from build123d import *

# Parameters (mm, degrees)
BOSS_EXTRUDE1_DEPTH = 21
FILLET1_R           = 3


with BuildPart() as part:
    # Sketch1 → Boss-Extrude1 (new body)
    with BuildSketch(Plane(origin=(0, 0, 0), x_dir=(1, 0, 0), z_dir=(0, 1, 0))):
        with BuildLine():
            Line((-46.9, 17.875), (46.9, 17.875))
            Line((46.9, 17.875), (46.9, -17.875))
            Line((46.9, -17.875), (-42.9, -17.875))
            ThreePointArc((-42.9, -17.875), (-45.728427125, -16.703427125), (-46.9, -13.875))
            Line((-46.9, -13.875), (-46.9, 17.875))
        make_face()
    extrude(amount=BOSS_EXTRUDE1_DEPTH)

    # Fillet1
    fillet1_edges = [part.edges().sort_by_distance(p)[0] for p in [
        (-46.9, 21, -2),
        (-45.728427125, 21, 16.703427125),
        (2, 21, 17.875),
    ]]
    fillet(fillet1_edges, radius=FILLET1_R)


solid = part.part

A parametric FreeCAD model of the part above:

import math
import FreeCAD as App
import Part
import Sketcher
from FreeCAD import Vector


def edges_at(feature, points):
    """Names of the edges that pass closest to the given points."""
    edges = feature.Shape.Edges
    near = lambda p: min(range(len(edges)), key=lambda i: edges[i].distToShape(Part.Vertex(*p))[0])
    return sorted({f"Edge{near(p) + 1}" for p in points})

doc = App.newDocument("Part")
params = doc.addObject("Spreadsheet::Sheet", "Params")
for row, (alias, value) in enumerate([
    ("sketch1_radius", "4 mm"),
    ("sketch1_width", "93.8 mm"),
    ("sketch1_height", "31.75 mm"),
    ("pad1_length", "21 mm"),
    ("fillet_radius", "3 mm"),
], start=1):
    params.set(f"A{row}", alias)
    params.set(f"B{row}", "=" + value)
    params.setAlias(f"B{row}", alias)

body = doc.addObject("PartDesign::Body", "Body")

# Sketch on XZ plane
sketch1 = body.newObject("Sketcher::SketchObject", "Sketch")
sketch1.AttachmentSupport = (doc.getObject("XZ_Plane"), [""])
sketch1.MapMode = "FlatFace"
sketch1.addGeometry([
    Part.LineSegment(Vector(46.9, -17.9, 0), Vector(-46.9, -17.9, 0)),  # 0
    Part.LineSegment(Vector(-46.9, -17.9, 0), Vector(-46.9, 13.9, 0)),  # 1
    Part.ArcOfCircle(Part.Circle(Vector(-42.9, 13.9, 0), Vector(0, 0, 1), 4), math.radians(90), math.radians(180)),  # 2
    Part.LineSegment(Vector(-42.9, 17.9, 0), Vector(46.9, 17.9, 0)),  # 3
    Part.LineSegment(Vector(46.9, 17.9, 0), Vector(46.9, -17.9, 0)),  # 4
], False)
sketch1.addConstraint([
    Sketcher.Constraint("Coincident", 0, 2, 1, 1),
    Sketcher.Constraint("Tangent", 1, 2, 2, 2),
    Sketcher.Constraint("Tangent", 2, 1, 3, 1),
    Sketcher.Constraint("Coincident", 3, 2, 4, 1),
    Sketcher.Constraint("Coincident", 4, 2, 0, 1),
    Sketcher.Constraint("Horizontal", 0),
    Sketcher.Constraint("Vertical", 1),
    Sketcher.Constraint("Horizontal", 3),
    Sketcher.Constraint("Vertical", 4),
    Sketcher.Constraint("Symmetric", 0, 2, 3, 2, -1, 1),
    Sketcher.Constraint("Radius", 2, 4.0),
    Sketcher.Constraint("DistanceX", 0, 2, 0, 1, 93.8),
    Sketcher.Constraint("DistanceY", 1, 1, 1, 2, 31.75),
])
sketch1.setExpression("Constraints[10]", "Params.sketch1_radius")
sketch1.setExpression("Constraints[11]", "Params.sketch1_width")
sketch1.setExpression("Constraints[12]", "Params.sketch1_height")
pad1 = body.newObject("PartDesign::Pad", "Pad")
pad1.Profile = sketch1
pad1.setExpression("Length", "Params.pad1_length")
pad1.Reversed = True
doc.recompute()

fillet = body.newObject("PartDesign::Fillet", "Fillet")
fillet.Base = (pad1, edges_at(pad1, [(-46.9, 21, -2), (-45.728, 21, 16.703), (2, 21, 17.875)]))
fillet.setExpression("Radius", "Params.fillet_radius")

doc.recompute()
